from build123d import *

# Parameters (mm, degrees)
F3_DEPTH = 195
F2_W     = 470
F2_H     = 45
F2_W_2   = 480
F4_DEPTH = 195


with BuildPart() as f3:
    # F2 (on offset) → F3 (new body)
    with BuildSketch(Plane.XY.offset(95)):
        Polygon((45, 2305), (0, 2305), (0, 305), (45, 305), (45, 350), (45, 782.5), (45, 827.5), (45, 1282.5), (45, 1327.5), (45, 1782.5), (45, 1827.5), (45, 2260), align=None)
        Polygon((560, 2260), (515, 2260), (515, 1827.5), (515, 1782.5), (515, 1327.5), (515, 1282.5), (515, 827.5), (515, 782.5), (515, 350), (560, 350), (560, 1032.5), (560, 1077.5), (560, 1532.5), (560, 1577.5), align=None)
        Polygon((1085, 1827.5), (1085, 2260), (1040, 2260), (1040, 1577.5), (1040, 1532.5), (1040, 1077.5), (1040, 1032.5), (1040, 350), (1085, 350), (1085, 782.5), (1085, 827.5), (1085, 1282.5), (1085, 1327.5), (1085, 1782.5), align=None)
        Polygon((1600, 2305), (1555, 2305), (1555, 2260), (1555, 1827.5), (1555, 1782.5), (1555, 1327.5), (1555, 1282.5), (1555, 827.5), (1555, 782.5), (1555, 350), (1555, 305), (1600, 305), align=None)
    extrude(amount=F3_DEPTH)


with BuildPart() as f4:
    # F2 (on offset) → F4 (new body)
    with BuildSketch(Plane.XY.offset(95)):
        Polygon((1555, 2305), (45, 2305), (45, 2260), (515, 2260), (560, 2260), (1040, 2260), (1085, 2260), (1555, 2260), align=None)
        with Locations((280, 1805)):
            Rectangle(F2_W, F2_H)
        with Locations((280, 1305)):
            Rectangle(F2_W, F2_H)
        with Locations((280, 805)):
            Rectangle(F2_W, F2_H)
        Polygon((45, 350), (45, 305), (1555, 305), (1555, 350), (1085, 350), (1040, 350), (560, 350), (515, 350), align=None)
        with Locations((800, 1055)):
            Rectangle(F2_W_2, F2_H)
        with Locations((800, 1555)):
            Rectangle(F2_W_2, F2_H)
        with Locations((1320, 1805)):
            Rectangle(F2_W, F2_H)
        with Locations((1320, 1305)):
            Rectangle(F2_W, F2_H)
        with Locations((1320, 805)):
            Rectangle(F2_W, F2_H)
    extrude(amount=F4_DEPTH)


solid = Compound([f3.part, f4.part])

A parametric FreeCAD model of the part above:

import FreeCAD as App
import Part
import Sketcher
from FreeCAD import Vector
Q = App.Units.Quantity

doc = App.newDocument("Part")
body = doc.addObject("PartDesign::Body", "Body")
body.AllowCompound = True

sketch1 = body.newObject("Sketcher::SketchObject", "Sketch")
sketch1.AttachmentSupport = (doc.getObject("XY_Plane"), [""])
sketch1.MapMode = "FlatFace"
sketch1.AttachmentOffset = App.Placement(Vector(0, 0, 95), App.Rotation())
sketch1.addGeometry([
    Part.LineSegment(Vector(45, 2305, 0), Vector(0, 2305, 0)),
    Part.LineSegment(Vector(0, 2305, 0), Vector(0, 305, 0)),
    Part.LineSegment(Vector(0, 305, 0), Vector(45, 305, 0)),
    Part.LineSegment(Vector(45, 305, 0), Vector(45, 2305, 0)),
    Part.LineSegment(Vector(560, 2260, 0), Vector(515, 2260, 0)),
    Part.LineSegment(Vector(515, 2260, 0), Vector(515, 350, 0)),
    Part.LineSegment(Vector(515, 350, 0), Vector(560, 350, 0)),
    Part.LineSegment(Vector(560, 350, 0), Vector(560, 2260, 0)),
    Part.LineSegment(Vector(1085, 2260, 0), Vector(1040, 2260, 0)),
    Part.LineSegment(Vector(1040, 2260, 0), Vector(1040, 350, 0)),
    Part.LineSegment(Vector(1040, 350, 0), Vector(1085, 350, 0)),
    Part.LineSegment(Vector(1085, 350, 0), Vector(1085, 2260, 0)),
    Part.LineSegment(Vector(1600, 2305, 0), Vector(1555, 2305, 0)),
    Part.LineSegment(Vector(1555, 2305, 0), Vector(1555, 305, 0)),
    Part.LineSegment(Vector(1555, 305, 0), Vector(1600, 305, 0)),
    Part.LineSegment(Vector(1600, 305, 0), Vector(1600, 2305, 0)),
], False)
sketch1.addConstraint([
    Sketcher.Constraint("Coincident", 0, 2, 1, 1),
    Sketcher.Constraint("Coincident", 1, 2, 2, 1),
    Sketcher.Constraint("Coincident", 2, 2, 3, 1),
    Sketcher.Constraint("Coincident", 3, 2, 0, 1),
    Sketcher.Constraint("Coincident", 4, 2, 5, 1),
    Sketcher.Constraint("Coincident", 5, 2, 6, 1),
    Sketcher.Constraint("Coincident", 6, 2, 7, 1),
    Sketcher.Constraint("Coincident", 7, 2, 4, 1),
    Sketcher.Constraint("Coincident", 8, 2, 9, 1),
    Sketcher.Constraint("Coincident", 9, 2, 10, 1),
    Sketcher.Constraint("Coincident", 10, 2, 11, 1),
    Sketcher.Constraint("Coincident", 11, 2, 8, 1),
    Sketcher.Constraint("Coincident", 12, 2, 13, 1),
    Sketcher.Constraint("Coincident", 13, 2, 14, 1),
    Sketcher.Constraint("Coincident", 14, 2, 15, 1),
    Sketcher.Constraint("Coincident", 15, 2, 12, 1),
    Sketcher.Constraint("Horizontal", 0),
    Sketcher.Constraint("Vertical", 1),
    Sketcher.Constraint("Horizontal", 2),
    Sketcher.Constraint("Vertical", 3),
    Sketcher.Constraint("Horizontal", 4),
    Sketcher.Constraint("Vertical", 5),
    Sketcher.Constraint("Horizontal", 6),
    Sketcher.Constraint("Vertical", 7),
    Sketcher.Constraint("Horizontal", 8),
    Sketcher.Constraint("Vertical", 9),
    Sketcher.Constraint("Horizontal", 10),
    Sketcher.Constraint("Vertical", 11),
    Sketcher.Constraint("Horizontal", 12),
    Sketcher.Constraint("Vertical", 13),
    Sketcher.Constraint("Horizontal", 14),
    Sketcher.Constraint("Vertical", 15),
    Sketcher.Constraint("PointOnObject", 0, 2, -2),
    Sketcher.Constraint("Horizontal", 7, 2, 8, 2),
    Sketcher.Constraint("Horizontal", 6, 2, 9, 2),
    Sketcher.Constraint("Horizontal", 3, 2, 12, 2),
    Sketcher.Constraint("Horizontal", 2, 2, 13, 2),
    Sketcher.Constraint("Equal", 2, 4),
    Sketcher.Constraint("Equal", 6, 8),
    Sketcher.Constraint("Equal", 10, 12),
    Sketcher.Constraint("DistanceX", 0, 2, 0, 1, Q("45 mm")),
    Sketcher.Constraint("DistanceY", 1, 2, 1, 1, Q("2000 mm")),
    Sketcher.Constraint("DistanceY", 5, 2, 5, 1, Q("1910 mm")),
    Sketcher.Constraint("DistanceY", -1, 1, 0, 2, Q("2305 mm")),
    Sketcher.Constraint("DistanceX", -1, 1, 4, 2, Q("515 mm")),
    Sketcher.Constraint("DistanceY", -1, 1, 4, 2, Q("2260 mm")),
    Sketcher.Constraint("DistanceX", -1, 1, 8, 2, Q("1040 mm")),
    Sketcher.Constraint("DistanceX", -1, 1, 12, 2, Q("1555 mm")),
])
pad1 = body.newObject("PartDesign::Pad", "Pad")
pad1.Profile = sketch1
pad1.Length = 195
body2 = doc.addObject("PartDesign::Body", "Body001")
body2.AllowCompound = True

sketch2 = body2.newObject("Sketcher::SketchObject", "Sketch001")
sketch2.AttachmentSupport = (doc.getObject("XY_Plane001"), [""])
sketch2.MapMode = "FlatFace"
sketch2.AttachmentOffset = App.Placement(Vector(0, 0, 95), App.Rotation())
sketch2.addGeometry([
    Part.LineSegment(Vector(1555, 2305, 0), Vector(45, 2305, 0)),
    Part.LineSegment(Vector(45, 2305, 0), Vector(45, 2260, 0)),
    Part.LineSegment(Vector(45, 2260, 0), Vector(1555, 2260, 0)),
    Part.LineSegment(Vector(1555, 2260, 0), Vector(1555, 2305, 0)),
    Part.LineSegment(Vector(45, 1828, 0), Vector(45, 1782, 0)),
    Part.LineSegment(Vector(45, 1782, 0), Vector(515, 1782, 0)),
    Part.LineSegment(Vector(515, 1782, 0), Vector(515, 1828, 0)),
    Part.LineSegment(Vector(515, 1828, 0), Vector(45, 1828, 0)),
    Part.LineSegment(Vector(45, 1328, 0), Vector(45, 1282, 0)),
    Part.LineSegment(Vector(45, 1282, 0), Vector(515, 1282, 0)),
    Part.LineSegment(Vector(515, 1282, 0), Vector(515, 1328, 0)),
    Part.LineSegment(Vector(515, 1328, 0), Vector(45, 1328, 0)),
    Part.LineSegment(Vector(45, 828, 0), Vector(45, 782, 0)),
    Part.LineSegment(Vector(45, 782, 0), Vector(515, 782, 0)),
    Part.LineSegment(Vector(515, 782, 0), Vector(515, 828, 0)),
    Part.LineSegment(Vector(515, 828, 0), Vector(45, 828, 0)),
    Part.LineSegment(Vector(45, 350, 0), Vector(45, 305, 0)),
    Part.LineSegment(Vector(45, 305, 0), Vector(1555, 305, 0)),
    Part.LineSegment(Vector(1555, 305, 0), Vector(1555, 350, 0)),
    Part.LineSegment(Vector(1555, 350, 0), Vector(45, 350, 0)),
    Part.LineSegment(Vector(560, 1078, 0), Vector(560, 1032, 0)),
    Part.LineSegment(Vector(560, 1032, 0), Vector(1040, 1032, 0)),
    Part.LineSegment(Vector(1040, 1032, 0), Vector(1040, 1078, 0)),
    Part.LineSegment(Vector(1040, 1078, 0), Vector(560, 1078, 0)),
    Part.LineSegment(Vector(560, 1578, 0), Vector(560, 1532, 0)),
    Part.LineSegment(Vector(560, 1532, 0), Vector(1040, 1532, 0)),
    Part.LineSegment(Vector(1040, 1532, 0), Vector(1040, 1578, 0)),
    Part.LineSegment(Vector(1040, 1578, 0), Vector(560, 1578, 0)),
    Part.LineSegment(Vector(1085, 1828, 0), Vector(1085, 1782, 0)),
    Part.LineSegment(Vector(1085, 1782, 0), Vector(1555, 1782, 0)),
    Part.LineSegment(Vector(1555, 1782, 0), Vector(1555, 1828, 0)),
    Part.LineSegment(Vector(1555, 1828, 0), Vector(1085, 1828, 0)),
    Part.LineSegment(Vector(1085, 1328, 0), Vector(1085, 1282, 0)),
    Part.LineSegment(Vector(1085, 1282, 0), Vector(1555, 1282, 0)),
    Part.LineSegment(Vector(1555, 1282, 0), Vector(1555, 1328, 0)),
    Part.LineSegment(Vector(1555, 1328, 0), Vector(1085, 1328, 0)),
    Part.LineSegment(Vector(1085, 828, 0), Vector(1085, 782, 0)),
    Part.LineSegment(Vector(1085, 782, 0), Vector(1555, 782, 0)),
    Part.LineSegment(Vector(1555, 782, 0), Vector(1555, 828, 0)),
    Part.LineSegment(Vector(1555, 828, 0), Vector(1085, 828, 0)),
], False)
sketch2.addConstraint([
    Sketcher.Constraint("Coincident", 0, 2, 1, 1),
    Sketcher.Constraint("Coincident", 1, 2, 2, 1),
    Sketcher.Constraint("Coincident", 2, 2, 3, 1),
    Sketcher.Constraint("Coincident", 3, 2, 0, 1),
    Sketcher.Constraint("Coincident", 4, 2, 5, 1),
    Sketcher.Constraint("Coincident", 5, 2, 6, 1),
    Sketcher.Constraint("Coincident", 6, 2, 7, 1),
    Sketcher.Constraint("Coincident", 7, 2, 4, 1),
    Sketcher.Constraint("Coincident", 8, 2, 9, 1),
    Sketcher.Constraint("Coincident", 9, 2, 10, 1),
    Sketcher.Constraint("Coincident", 10, 2, 11, 1),
    Sketcher.Constraint("Coincident", 11, 2, 8, 1),
    Sketcher.Constraint("Coincident", 12, 2, 13, 1),
    Sketcher.Constraint("Coincident", 13, 2, 14, 1),
    Sketcher.Constraint("Coincident", 14, 2, 15, 1),
    Sketcher.Constraint("Coincident", 15, 2, 12, 1),
    Sketcher.Constraint("Coincident", 16, 2, 17, 1),
    Sketcher.Constraint("Coincident", 17, 2, 18, 1),
    Sketcher.Constraint("Coincident", 18, 2, 19, 1),
    Sketcher.Constraint("Coincident", 19, 2, 16, 1),
    Sketcher.Constraint("Coincident", 20, 2, 21, 1),
    Sketcher.Constraint("Coincident", 21, 2, 22, 1),
    Sketcher.Constraint("Coincident", 22, 2, 23, 1),
    Sketcher.Constraint("Coincident", 23, 2, 20, 1),
    Sketcher.Constraint("Coincident", 24, 2, 25, 1),
    Sketcher.Constraint("Coincident", 25, 2, 26, 1),
    Sketcher.Constraint("Coincident", 26, 2, 27, 1),
    Sketcher.Constraint("Coincident", 27, 2, 24, 1),
    Sketcher.Constraint("Coincident", 28, 2, 29, 1),
    Sketcher.Constraint("Coincident", 29, 2, 30, 1),
    Sketcher.Constraint("Coincident", 30, 2, 31, 1),
    Sketcher.Constraint("Coincident", 31, 2, 28, 1),
    Sketcher.Constraint("Coincident", 32, 2, 33, 1),
    Sketcher.Constraint("Coincident", 33, 2, 34, 1),
    Sketcher.Constraint("Coincident", 34, 2, 35, 1),
    Sketcher.Constraint("Coincident", 35, 2, 32, 1),
    Sketcher.Constraint("Coincident", 36, 2, 37, 1),
    Sketcher.Constraint("Coincident", 37, 2, 38, 1),
    Sketcher.Constraint("Coincident", 38, 2, 39, 1),
    Sketcher.Constraint("Coincident", 39, 2, 36, 1),
    Sketcher.Constraint("Horizontal", 0),
    Sketcher.Constraint("Vertical", 1),
    Sketcher.Constraint("Horizontal", 2),
    Sketcher.Constraint("Vertical", 3),
    Sketcher.Constraint("Vertical", 4),
    Sketcher.Constraint("Horizontal", 5),
    Sketcher.Constraint("Vertical", 6),
    Sketcher.Constraint("Horizontal", 7),
    Sketcher.Constraint("Vertical", 8),
    Sketcher.Constraint("Horizontal", 9),
    Sketcher.Constraint("Vertical", 10),
    Sketcher.Constraint("Horizontal", 11),
    Sketcher.Constraint("Vertical", 12),
    Sketcher.Constraint("Horizontal", 13),
    Sketcher.Constraint("Vertical", 14),
    Sketcher.Constraint("Horizontal", 15),
    Sketcher.Constraint("Vertical", 16),
    Sketcher.Constraint("Horizontal", 17),
    Sketcher.Constraint("Vertical", 18),
    Sketcher.Constraint("Horizontal", 19),
    Sketcher.Constraint("Vertical", 20),
    Sketcher.Constraint("Horizontal", 21),
    Sketcher.Constraint("Vertical", 22),
    Sketcher.Constraint("Horizontal", 23),
    Sketcher.Constraint("Vertical", 24),
    Sketcher.Constraint("Horizontal", 25),
    Sketcher.Constraint("Vertical", 26),
    Sketcher.Constraint("Horizontal", 27),
    Sketcher.Constraint("Vertical", 28),
    Sketcher.Constraint("Horizontal", 29),
    Sketcher.Constraint("Vertical", 30),
    Sketcher.Constraint("Horizontal", 31),
    Sketcher.Constraint("Vertical", 32),
    Sketcher.Constraint("Horizontal", 33),
    Sketcher.Constraint("Vertical", 34),
    Sketcher.Constraint("Horizontal", 35),
    Sketcher.Constraint("Vertical", 36),
    Sketcher.Constraint("Horizontal", 37),
    Sketcher.Constraint("Vertical", 38),
    Sketcher.Constraint("Horizontal", 39),
    Sketcher.Constraint("Horizontal", 5, 2, 28, 2),
    Sketcher.Constraint("Horizontal", 7, 2, 30, 2),
    Sketcher.Constraint("Horizontal", 9, 2, 32, 2),
    Sketcher.Constraint("Horizontal", 11, 2, 34, 2),
    Sketcher.Constraint("Horizontal", 13, 2, 36, 2),
    Sketcher.Constraint("Horizontal", 15, 2, 38, 2),
    Sketcher.Constraint("Vertical", 1, 2, 4, 2),
    Sketcher.Constraint("Vertical", 7, 2, 8, 2),
    Sketcher.Constraint("Vertical", 6, 2, 9, 2),
    Sketcher.Constraint("Vertical", 11, 2, 12, 2),
    Sketcher.Constraint("Vertical", 10, 2, 13, 2),
    Sketcher.Constraint("Vertical", 15, 2, 16, 2),
    Sketcher.Constraint("Vertical", 3, 2, 17, 2),
    Sketcher.Constraint("Vertical", 23, 2, 24, 2),
    Sketcher.Constraint("Vertical", 22, 2, 25, 2),
    Sketcher.Constraint("Vertical", 18, 2, 29, 2),
    Sketcher.Constraint("Vertical", 31, 2, 32, 2),
    Sketcher.Constraint("Vertical", 30, 2, 33, 2),
    Sketcher.Constraint("Vertical", 35, 2, 36, 2),
    Sketcher.Constraint("Vertical", 34, 2, 37, 2),
    Sketcher.Constraint("Equal", 15, 29),
    Sketcher.Constraint("Equal", 3, 4),
    Sketcher.Constraint("Equal", 6, 8),
    Sketcher.Constraint("Equal", 10, 12),
    Sketcher.Constraint("Equal", 14, 16),
    Sketcher.Constraint("Equal", 18, 20),
    Sketcher.Constraint("Equal", 22, 24),
    Sketcher.Constraint("DistanceX", 0, 2, 0, 1, Q("1510 mm")),
    Sketcher.Constraint("DistanceX", 5, 1, 5, 2, Q("470 mm")),
    Sketcher.Constraint("DistanceX", 21, 1, 21, 2, Q("480 mm")),
    Sketcher.Constraint("DistanceY", 1, 2, 1, 1, Q("45 mm")),
    Sketcher.Constraint("DistanceX", -1, 1, 0, 2, Q("45 mm")),
    Sketcher.Constraint("DistanceY", -1, 1, 0, 2, Q("2305 mm")),
    Sketcher.Constraint("DistanceY", -1, 1, 16, 2, Q("305 mm")),
    Sketcher.Constraint("DistanceX", -1, 1, 20, 2, Q("560 mm")),
    Sketcher.Constraint("DistanceY", 8, 2, 4, 2, Q("500 mm")),
    Sketcher.Constraint("DistanceY", 12, 2, 8, 2, Q("500 mm")),
    Sketcher.Constraint("DistanceY", 14, 2, 20, 2, Q("205 mm")),
    Sketcher.Constraint("DistanceY", 10, 2, 24, 2, Q("205 mm")),
    Sketcher.Constraint("DistanceY", -1, 1, 4, 2, Q("1782.5 mm")),
])
pad2 = body2.newObject("PartDesign::Pad", "Pad001")
pad2.Profile = sketch2
pad2.Length = 195

doc.recompute()
